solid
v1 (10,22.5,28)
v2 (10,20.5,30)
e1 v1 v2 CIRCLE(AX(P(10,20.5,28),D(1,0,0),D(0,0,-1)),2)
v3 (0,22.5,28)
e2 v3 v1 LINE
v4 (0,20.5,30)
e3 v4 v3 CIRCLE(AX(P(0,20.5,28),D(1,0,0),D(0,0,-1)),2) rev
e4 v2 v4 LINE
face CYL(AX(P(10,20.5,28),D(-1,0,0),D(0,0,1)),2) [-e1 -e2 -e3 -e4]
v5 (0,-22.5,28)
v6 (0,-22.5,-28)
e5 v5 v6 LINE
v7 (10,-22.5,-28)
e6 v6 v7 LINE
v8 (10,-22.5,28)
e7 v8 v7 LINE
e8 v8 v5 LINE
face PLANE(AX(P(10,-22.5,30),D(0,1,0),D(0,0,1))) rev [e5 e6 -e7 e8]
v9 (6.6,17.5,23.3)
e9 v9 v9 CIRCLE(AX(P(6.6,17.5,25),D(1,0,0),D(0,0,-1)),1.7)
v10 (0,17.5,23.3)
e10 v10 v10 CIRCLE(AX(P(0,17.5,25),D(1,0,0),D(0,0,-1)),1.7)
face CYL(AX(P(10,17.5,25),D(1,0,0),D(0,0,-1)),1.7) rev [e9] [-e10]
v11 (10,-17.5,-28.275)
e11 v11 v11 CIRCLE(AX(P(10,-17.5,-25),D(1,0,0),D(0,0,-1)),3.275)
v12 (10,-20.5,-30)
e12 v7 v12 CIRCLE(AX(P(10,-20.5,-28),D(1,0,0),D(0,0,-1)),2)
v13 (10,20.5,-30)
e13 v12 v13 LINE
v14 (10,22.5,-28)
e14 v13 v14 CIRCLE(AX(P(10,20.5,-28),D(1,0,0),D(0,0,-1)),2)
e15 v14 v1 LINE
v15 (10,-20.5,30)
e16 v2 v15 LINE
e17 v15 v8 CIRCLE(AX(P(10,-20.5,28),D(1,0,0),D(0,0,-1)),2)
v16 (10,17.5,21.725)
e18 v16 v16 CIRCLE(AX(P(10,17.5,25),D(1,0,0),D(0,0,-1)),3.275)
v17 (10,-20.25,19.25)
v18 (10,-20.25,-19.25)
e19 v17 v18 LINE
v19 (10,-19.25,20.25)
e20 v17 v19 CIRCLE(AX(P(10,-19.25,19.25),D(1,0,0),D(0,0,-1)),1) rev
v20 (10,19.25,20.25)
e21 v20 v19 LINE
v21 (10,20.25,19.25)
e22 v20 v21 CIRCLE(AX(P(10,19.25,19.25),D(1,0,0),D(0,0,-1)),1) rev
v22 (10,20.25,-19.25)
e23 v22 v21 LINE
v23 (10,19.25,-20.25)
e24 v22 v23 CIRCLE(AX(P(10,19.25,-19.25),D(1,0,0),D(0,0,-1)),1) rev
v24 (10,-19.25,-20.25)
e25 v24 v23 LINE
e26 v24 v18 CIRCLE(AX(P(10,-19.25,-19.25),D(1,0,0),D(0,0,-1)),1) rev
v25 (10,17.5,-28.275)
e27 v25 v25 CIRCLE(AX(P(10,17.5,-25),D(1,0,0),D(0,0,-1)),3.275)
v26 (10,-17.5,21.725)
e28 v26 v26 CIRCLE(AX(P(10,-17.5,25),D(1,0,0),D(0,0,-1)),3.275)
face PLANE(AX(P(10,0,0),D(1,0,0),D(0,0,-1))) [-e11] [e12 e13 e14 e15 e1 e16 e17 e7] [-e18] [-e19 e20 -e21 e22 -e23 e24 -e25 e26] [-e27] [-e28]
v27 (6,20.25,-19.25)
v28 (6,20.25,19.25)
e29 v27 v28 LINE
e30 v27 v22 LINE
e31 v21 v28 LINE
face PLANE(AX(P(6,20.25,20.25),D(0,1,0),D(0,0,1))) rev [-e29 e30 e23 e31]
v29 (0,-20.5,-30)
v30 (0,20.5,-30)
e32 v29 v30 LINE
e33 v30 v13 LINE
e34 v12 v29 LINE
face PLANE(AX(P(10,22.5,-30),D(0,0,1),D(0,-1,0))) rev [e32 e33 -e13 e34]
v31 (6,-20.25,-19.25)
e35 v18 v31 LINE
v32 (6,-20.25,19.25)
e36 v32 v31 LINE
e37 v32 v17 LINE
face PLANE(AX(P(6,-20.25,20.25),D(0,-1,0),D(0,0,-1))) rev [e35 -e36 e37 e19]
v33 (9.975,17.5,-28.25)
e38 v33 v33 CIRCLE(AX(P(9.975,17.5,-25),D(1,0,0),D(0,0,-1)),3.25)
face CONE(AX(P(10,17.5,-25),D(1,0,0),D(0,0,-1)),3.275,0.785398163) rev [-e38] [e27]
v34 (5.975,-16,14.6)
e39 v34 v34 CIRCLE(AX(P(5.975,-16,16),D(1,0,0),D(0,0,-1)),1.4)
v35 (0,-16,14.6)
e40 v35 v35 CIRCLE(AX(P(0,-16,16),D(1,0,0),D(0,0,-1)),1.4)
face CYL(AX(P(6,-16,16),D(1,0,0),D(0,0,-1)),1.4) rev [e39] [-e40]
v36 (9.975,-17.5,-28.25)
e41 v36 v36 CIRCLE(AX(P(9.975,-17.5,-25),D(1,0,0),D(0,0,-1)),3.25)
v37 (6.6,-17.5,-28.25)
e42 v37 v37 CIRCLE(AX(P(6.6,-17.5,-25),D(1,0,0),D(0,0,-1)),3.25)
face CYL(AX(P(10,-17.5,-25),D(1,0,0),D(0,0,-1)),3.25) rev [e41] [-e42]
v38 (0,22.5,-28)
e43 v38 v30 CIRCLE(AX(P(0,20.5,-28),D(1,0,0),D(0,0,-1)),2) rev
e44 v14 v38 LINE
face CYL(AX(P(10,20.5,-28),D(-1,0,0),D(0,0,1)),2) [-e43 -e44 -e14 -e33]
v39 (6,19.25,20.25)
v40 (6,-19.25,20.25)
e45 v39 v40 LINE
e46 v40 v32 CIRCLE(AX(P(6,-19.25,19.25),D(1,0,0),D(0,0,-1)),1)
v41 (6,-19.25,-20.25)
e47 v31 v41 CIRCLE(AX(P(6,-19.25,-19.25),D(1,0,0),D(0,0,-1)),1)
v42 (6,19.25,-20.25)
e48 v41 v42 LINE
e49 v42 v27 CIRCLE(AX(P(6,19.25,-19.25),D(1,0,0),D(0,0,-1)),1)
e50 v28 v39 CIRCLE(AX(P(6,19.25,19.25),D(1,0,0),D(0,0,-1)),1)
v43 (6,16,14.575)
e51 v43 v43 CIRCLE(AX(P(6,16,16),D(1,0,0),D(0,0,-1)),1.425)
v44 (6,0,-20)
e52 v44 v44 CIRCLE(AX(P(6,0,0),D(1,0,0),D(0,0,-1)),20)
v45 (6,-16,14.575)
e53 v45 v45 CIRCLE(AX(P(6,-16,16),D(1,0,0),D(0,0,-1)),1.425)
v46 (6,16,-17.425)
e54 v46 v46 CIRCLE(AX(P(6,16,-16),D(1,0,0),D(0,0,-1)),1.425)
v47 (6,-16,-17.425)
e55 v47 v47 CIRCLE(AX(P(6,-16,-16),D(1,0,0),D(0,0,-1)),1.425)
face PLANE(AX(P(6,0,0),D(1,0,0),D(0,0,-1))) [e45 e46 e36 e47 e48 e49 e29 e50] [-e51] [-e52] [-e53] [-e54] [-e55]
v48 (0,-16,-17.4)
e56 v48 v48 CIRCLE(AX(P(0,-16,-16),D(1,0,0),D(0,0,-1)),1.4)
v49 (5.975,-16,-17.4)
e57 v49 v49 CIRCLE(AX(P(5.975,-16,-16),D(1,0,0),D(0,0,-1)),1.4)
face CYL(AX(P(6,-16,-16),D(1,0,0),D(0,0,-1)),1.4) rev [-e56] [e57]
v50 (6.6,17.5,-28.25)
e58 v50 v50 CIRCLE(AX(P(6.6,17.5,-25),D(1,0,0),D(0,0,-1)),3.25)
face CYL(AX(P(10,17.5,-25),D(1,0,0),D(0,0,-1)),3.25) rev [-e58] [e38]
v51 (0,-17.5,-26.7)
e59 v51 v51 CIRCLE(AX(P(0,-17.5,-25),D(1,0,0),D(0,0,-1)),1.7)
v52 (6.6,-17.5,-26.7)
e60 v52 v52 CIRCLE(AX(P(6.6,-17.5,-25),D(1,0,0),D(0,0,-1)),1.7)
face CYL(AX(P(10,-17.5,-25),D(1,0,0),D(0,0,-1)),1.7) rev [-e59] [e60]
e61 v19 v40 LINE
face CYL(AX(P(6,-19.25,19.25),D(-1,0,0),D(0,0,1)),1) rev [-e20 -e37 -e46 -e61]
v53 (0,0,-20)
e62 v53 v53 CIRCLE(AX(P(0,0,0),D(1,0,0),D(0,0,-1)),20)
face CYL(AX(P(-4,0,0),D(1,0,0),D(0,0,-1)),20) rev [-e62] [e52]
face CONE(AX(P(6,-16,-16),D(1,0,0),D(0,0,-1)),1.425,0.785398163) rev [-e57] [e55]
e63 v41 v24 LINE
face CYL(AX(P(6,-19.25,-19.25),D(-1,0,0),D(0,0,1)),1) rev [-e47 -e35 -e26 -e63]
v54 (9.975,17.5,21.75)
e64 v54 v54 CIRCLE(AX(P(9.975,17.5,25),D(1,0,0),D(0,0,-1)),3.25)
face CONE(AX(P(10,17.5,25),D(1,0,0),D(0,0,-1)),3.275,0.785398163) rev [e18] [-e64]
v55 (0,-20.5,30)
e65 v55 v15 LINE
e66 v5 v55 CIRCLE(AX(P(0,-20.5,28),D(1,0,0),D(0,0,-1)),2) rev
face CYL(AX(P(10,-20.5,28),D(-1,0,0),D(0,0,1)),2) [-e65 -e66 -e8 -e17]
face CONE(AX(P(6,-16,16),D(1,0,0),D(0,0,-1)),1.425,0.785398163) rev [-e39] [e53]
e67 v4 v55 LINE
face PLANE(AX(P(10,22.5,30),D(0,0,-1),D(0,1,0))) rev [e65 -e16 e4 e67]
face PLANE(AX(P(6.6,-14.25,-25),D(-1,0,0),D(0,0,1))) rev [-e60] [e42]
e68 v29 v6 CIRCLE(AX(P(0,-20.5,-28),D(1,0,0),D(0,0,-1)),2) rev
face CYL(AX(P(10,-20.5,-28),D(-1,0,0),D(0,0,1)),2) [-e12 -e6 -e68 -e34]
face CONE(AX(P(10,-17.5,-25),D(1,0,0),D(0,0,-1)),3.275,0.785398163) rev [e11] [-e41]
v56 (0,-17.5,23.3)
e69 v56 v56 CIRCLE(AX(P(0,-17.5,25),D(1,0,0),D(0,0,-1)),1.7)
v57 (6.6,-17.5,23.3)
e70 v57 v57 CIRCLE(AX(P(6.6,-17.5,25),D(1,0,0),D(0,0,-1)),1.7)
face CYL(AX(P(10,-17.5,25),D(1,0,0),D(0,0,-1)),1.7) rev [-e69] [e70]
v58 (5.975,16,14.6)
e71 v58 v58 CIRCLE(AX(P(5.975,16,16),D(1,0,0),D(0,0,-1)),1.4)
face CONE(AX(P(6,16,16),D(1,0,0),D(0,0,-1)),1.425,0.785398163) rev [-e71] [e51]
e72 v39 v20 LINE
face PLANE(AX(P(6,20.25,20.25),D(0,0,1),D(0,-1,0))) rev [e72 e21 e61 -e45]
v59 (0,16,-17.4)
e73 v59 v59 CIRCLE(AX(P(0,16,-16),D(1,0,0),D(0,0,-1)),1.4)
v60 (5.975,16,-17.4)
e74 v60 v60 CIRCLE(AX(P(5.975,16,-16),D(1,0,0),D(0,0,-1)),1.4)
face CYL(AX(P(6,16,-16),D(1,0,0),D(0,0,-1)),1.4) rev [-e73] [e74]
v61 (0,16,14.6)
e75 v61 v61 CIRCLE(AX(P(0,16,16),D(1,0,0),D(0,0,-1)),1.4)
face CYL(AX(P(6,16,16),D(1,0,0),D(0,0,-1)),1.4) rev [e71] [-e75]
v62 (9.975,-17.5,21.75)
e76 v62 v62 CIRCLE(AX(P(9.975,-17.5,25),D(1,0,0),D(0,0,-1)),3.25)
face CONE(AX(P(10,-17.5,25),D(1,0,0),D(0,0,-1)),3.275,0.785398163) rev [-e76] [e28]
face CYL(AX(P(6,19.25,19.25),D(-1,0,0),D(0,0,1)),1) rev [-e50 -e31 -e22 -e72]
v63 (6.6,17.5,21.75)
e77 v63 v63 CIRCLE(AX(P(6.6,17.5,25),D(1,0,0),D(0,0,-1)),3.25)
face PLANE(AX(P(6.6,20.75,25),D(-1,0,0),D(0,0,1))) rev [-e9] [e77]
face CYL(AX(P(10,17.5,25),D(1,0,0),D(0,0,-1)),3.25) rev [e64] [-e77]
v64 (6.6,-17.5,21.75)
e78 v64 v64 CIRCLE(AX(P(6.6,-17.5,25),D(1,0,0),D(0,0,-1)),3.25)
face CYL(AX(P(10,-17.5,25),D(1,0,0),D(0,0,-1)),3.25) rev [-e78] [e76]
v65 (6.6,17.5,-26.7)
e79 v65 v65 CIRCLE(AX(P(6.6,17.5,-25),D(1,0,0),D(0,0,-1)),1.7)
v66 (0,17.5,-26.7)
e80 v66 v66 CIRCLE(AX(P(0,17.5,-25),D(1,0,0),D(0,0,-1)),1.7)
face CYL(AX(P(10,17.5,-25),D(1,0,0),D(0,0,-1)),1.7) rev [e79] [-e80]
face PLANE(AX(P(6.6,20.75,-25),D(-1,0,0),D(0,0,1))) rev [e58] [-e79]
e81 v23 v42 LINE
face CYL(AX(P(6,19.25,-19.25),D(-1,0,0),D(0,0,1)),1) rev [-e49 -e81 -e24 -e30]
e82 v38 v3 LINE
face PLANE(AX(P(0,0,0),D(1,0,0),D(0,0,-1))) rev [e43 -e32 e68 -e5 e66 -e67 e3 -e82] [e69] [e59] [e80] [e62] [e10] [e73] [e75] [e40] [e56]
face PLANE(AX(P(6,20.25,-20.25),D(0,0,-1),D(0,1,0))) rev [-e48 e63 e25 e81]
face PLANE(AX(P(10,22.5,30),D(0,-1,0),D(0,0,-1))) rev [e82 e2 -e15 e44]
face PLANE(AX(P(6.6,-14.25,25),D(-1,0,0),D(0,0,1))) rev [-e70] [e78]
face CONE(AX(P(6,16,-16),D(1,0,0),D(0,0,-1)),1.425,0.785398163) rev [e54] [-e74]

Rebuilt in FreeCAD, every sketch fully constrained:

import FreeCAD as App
import Part
import Sketcher

V = App.Vector
Q = App.Units.Quantity


def edges_at(feature, points):
    """Names of the edges that pass closest to the given points."""
    edges = feature.Shape.Edges
    near = lambda p: min(range(len(edges)), key=lambda i: edges[i].distToShape(Part.Vertex(*p))[0])
    return sorted({f"Edge{near(p) + 1}" for p in points})

doc = App.newDocument("Part")
body = doc.addObject("PartDesign::Body", "Body")

# Sketch on YZ plane
sketch1 = body.newObject("Sketcher::SketchObject", "Sketch")
sketch1.AttachmentSupport = (doc.getObject("YZ_Plane"), [""])
sketch1.MapMode = "FlatFace"
sketch1.addGeometry([
    Part.LineSegment(V(22, 30, 0), V(-22, 30, 0)),
    Part.LineSegment(V(-22, 30, 0), V(-22, -30, 0)),
    Part.LineSegment(V(-22, -30, 0), V(22, -30, 0)),
    Part.LineSegment(V(22, -30, 0), V(22, 30, 0)),
], False)
sketch1.addConstraint([
    Sketcher.Constraint("Coincident", 0, 2, 1, 1),
    Sketcher.Constraint("Coincident", 1, 2, 2, 1),
    Sketcher.Constraint("Coincident", 2, 2, 3, 1),
    Sketcher.Constraint("Coincident", 3, 2, 0, 1),
    Sketcher.Constraint("Horizontal", 0),
    Sketcher.Constraint("Vertical", 1),
    Sketcher.Constraint("Horizontal", 2),
    Sketcher.Constraint("Vertical", 3),
    Sketcher.Constraint("Symmetric", 0, 2, 2, 2, -1, 1),
    Sketcher.Constraint("DistanceX", 0, 2, 0, 1, 45.0),
    Sketcher.Constraint("DistanceY", 1, 2, 1, 1, 60.0),
])
pad1 = body.newObject("PartDesign::Pad", "Pad")
pad1.Profile = sketch1
pad1.Length = 10

# Sketch on YZ plane
sketch2 = body.newObject("Sketcher::SketchObject", "Sketch001")
sketch2.AttachmentSupport = (doc.getObject("YZ_Plane"), [""])
sketch2.MapMode = "FlatFace"
sketch2.AttachmentOffset = App.Placement(V(0, 0, 10), App.Rotation())
sketch2.addGeometry([
    Part.LineSegment(V(20, 20, 0), V(-20, 20, 0)),
    Part.LineSegment(V(-20, 20, 0), V(-20, -20, 0)),
    Part.LineSegment(V(-20, -20, 0), V(20, -20, 0)),
    Part.LineSegment(V(20, -20, 0), V(20, 20, 0)),
], False)
sketch2.addConstraint([
    Sketcher.Constraint("Coincident", 0, 2, 1, 1),
    Sketcher.Constraint("Coincident", 1, 2, 2, 1),
    Sketcher.Constraint("Coincident", 2, 2, 3, 1),
    Sketcher.Constraint("Coincident", 3, 2, 0, 1),
    Sketcher.Constraint("Horizontal", 0),
    Sketcher.Constraint("Vertical", 1),
    Sketcher.Constraint("Horizontal", 2),
    Sketcher.Constraint("Vertical", 3),
    Sketcher.Constraint("Symmetric", 0, 2, 2, 2, -1, 1),
    Sketcher.Constraint("Equal", 2, 1),
    Sketcher.Constraint("DistanceX", 0, 2, 0, 1, 40.5),
])
pocket1 = body.newObject("PartDesign::Pocket", "Pocket")
pocket1.Profile = sketch2
pocket1.Length = 4

# Sketch on YZ plane
sketch3 = body.newObject("Sketcher::SketchObject", "Sketch002")
sketch3.AttachmentSupport = (doc.getObject("YZ_Plane"), [""])
sketch3.MapMode = "FlatFace"
sketch3.AttachmentOffset = App.Placement(V(0, 0, 6), App.Rotation())
sketch3.addGeometry(Part.Circle(V(0, 0, 0), V(0, 0, 1), 20), False)
sketch3.addConstraint([
    Sketcher.Constraint("Coincident", 0, 3, -1, 1),
    Sketcher.Constraint("Diameter", 0, 40.0),
])
pocket2 = body.newObject("PartDesign::Pocket", "Pocket001")
pocket2.Profile = sketch3
pocket2.Length = 10
doc.recompute()

fillet = body.newObject("PartDesign::Fillet", "Fillet")
fillet.Base = (pocket2, edges_at(pocket2, [
    (8, 20.25, -20.25),
    (8, -20.25, -20.25),
    (8, -20.25, 20.25),
    (8, 20.25, 20.25),
]))
fillet.Radius = 1

# Sketch on YZ plane
sketch4 = body.newObject("Sketcher::SketchObject", "Sketch003")
sketch4.AttachmentSupport = (doc.getObject("YZ_Plane"), [""])
sketch4.MapMode = "FlatFace"
sketch4.AttachmentOffset = App.Placement(V(0, 0, 6), App.Rotation())
sketch4.addGeometry([
    Part.Circle(V(0, 0, 0), V(0, 0, 1), 1.4),  # 0
    Part.Circle(V(-16, -16, 0), V(0, 0, 1), 1.4),  # 1
    Part.Circle(V(16, 16, 0), V(0, 0, 1), 1.4),  # 2
    Part.Circle(V(-16, 16, 0), V(0, 0, 1), 1.4),  # 3
    Part.Circle(V(16, -16, 0), V(0, 0, 1), 1.4),  # 4
], False)
sketch4.addConstraint([
    Sketcher.Constraint("Coincident", 0, 3, -1, 1),
    Sketcher.Constraint("Equal", 0, 1),
    Sketcher.Constraint("Equal", 1, 2),
    Sketcher.Constraint("Equal", 2, 3),
    Sketcher.Constraint("Equal", 3, 4),
    Sketcher.Constraint("Symmetric", 1, 3, 2, 3, -1, 1),
    Sketcher.Constraint("Symmetric", 3, 3, 4, 3, -1, 1),
    Sketcher.Constraint("Symmetric", 2, 3, 3, 3, -2),
    Sketcher.Constraint("Diameter", 0, 2.8),
    Sketcher.Constraint("DistanceX", 1, 3, -1, 1, 16.0),
    Sketcher.Constraint("DistanceY", 1, 3, -1, 1, 16.0),
])
doc.recompute()
hole = body.newObject("PartDesign::Hole", "Hole")
hole.Profile = sketch4
hole.ThreadType = "None"
hole.Diameter = 2.8
hole.DepthType = "ThroughAll"
hole.HoleCutType = "Countersink"
hole.HoleCutDiameter = 2.85
hole.HoleCutCountersinkAngle = 90

# Sketch on XZ plane
sketch5 = body.newObject("Sketcher::SketchObject", "Sketch004")
sketch5.AttachmentSupport = (doc.getObject("XZ_Plane"), [""])
sketch5.MapMode = "FlatFace"
sketch5.AttachmentOffset = App.Placement(V(0, 0, 17.5), App.Rotation())
sketch5.addGeometry([
    Part.LineSegment(V(0, -25, 0), V(10, -25, 0)),  # 0
    Part.LineSegment(V(10, -25, 0), V(10, -28.275, 0)),  # 1
    Part.LineSegment(V(10, -28.275, 0), V(9.975, -28.25, 0)),  # 2
    Part.LineSegment(V(9.975, -28.25, 0), V(6.6, -28.25, 0)),  # 3
    Part.LineSegment(V(6.6, -28.25, 0), V(6.6, -26.7, 0)),  # 4
    Part.LineSegment(V(6.6, -26.7, 0), V(0, -26.7, 0)),  # 5
    Part.LineSegment(V(0, -26.7, 0), V(0, -25, 0)),  # 6
], False)
sketch5.addGeometry(Part.LineSegment(V(10, -25, 0), V(0, -25, 0)), True)  # axis
sketch5.addConstraint([
    Sketcher.Constraint("Coincident", 0, 2, 1, 1),
    Sketcher.Constraint("Coincident", 1, 2, 2, 1),
    Sketcher.Constraint("Coincident", 2, 2, 3, 1),
    Sketcher.Constraint("Coincident", 3, 2, 4, 1),
    Sketcher.Constraint("Coincident", 4, 2, 5, 1),
    Sketcher.Constraint("Coincident", 5, 2, 6, 1),
    Sketcher.Constraint("Coincident", 6, 2, 0, 1),
    Sketcher.Constraint("Horizontal", 0),
    Sketcher.Constraint("Vertical", 1),
    Sketcher.Constraint("Horizontal", 3),
    Sketcher.Constraint("Vertical", 4),
    Sketcher.Constraint("Horizontal", 5),
    Sketcher.Constraint("Vertical", 6),
    Sketcher.Constraint("Horizontal", 7),
    Sketcher.Constraint("Coincident", 7, 1, 0, 2),
    Sketcher.Constraint("PointOnObject", 5, 2, -2),
    Sketcher.Constraint("PointOnObject", 7, 2, -2),
    Sketcher.Constraint("DistanceX", 0, 1, 0, 2, 10.0),
    Sketcher.Constraint("Angle", 2, Q("135 deg")),
    Sketcher.Constraint("DistanceX", 5, 2, 5, 1, 6.6),
    Sketcher.Constraint("DistanceY", 6, 1, 6, 2, 1.7),
    Sketcher.Constraint("DistanceY", 0, 2, -1, 1, 25.0),
    Sketcher.Constraint("DistanceY", 4, 1, 4, 2, 1.55),
    Sketcher.Constraint("DistanceX", 3, 2, 3, 1, 3.375),
])
groove = body.newObject("PartDesign::Groove", "Groove")
groove.Profile = sketch5
groove.ReferenceAxis = (sketch5, ["Axis0"])
groove.Angle = 360
doc.recompute()

datumline = body.newObject("PartDesign::Line", "DatumLine")
datumline.Placement = App.Placement(V(0, 0, 0), App.Rotation(V(0, 0, 1), V(0, 0.573462344, 0.819231921)))
linearpattern = body.newObject("PartDesign::LinearPattern", "LinearPattern")
linearpattern.Originals = [groove]
linearpattern.Direction = (datumline, [""])
linearpattern.Mode = "offset"
linearpattern.Offset = 30.516389
linearpattern.Occurrences = 2
body.Tip = linearpattern
doc.recompute()

datumline2 = body.newObject("PartDesign::Line", "DatumLine001")
datumline2.Placement = App.Placement(V(0, 0, 0), App.Rotation(V(0, 0, 1), V(0, 0.573462344, 0.819231921)))
linearpattern2 = body.newObject("PartDesign::LinearPattern", "LinearPattern001")
linearpattern2.Originals = [groove]
linearpattern2.Direction = (datumline2, [""])
linearpattern2.Mode = "offset"
linearpattern2.Offset = 61.032778
linearpattern2.Occurrences = 2
body.Tip = linearpattern2
doc.recompute()

linearpattern3 = body.newObject("PartDesign::LinearPattern", "LinearPattern002")
linearpattern3.Originals = [groove]
linearpattern3.Direction = (doc.getObject("Z_Axis"), [""])
linearpattern3.Mode = "offset"
linearpattern3.Offset = 50
linearpattern3.Occurrences = 2
body.Tip = linearpattern3
doc.recompute()

linearpattern4 = body.newObject("PartDesign::LinearPattern", "LinearPattern003")
linearpattern4.Originals = [groove]
linearpattern4.Direction = (doc.getObject("Y_Axis"), [""])
linearpattern4.Mode = "offset"
linearpattern4.Offset = 35
linearpattern4.Occurrences = 2
body.Tip = linearpattern4
doc.recompute()

fillet2 = body.newObject("PartDesign::Fillet", "Fillet001")
fillet2.Base = (linearpattern4, edges_at(linearpattern4, [
    (5, -22.5, -30),
    (5, -22.5, 30),
    (5, 22.5, 30),
    (5, 22.5, -30),
]))
fillet2.Radius = 2

doc.recompute()
